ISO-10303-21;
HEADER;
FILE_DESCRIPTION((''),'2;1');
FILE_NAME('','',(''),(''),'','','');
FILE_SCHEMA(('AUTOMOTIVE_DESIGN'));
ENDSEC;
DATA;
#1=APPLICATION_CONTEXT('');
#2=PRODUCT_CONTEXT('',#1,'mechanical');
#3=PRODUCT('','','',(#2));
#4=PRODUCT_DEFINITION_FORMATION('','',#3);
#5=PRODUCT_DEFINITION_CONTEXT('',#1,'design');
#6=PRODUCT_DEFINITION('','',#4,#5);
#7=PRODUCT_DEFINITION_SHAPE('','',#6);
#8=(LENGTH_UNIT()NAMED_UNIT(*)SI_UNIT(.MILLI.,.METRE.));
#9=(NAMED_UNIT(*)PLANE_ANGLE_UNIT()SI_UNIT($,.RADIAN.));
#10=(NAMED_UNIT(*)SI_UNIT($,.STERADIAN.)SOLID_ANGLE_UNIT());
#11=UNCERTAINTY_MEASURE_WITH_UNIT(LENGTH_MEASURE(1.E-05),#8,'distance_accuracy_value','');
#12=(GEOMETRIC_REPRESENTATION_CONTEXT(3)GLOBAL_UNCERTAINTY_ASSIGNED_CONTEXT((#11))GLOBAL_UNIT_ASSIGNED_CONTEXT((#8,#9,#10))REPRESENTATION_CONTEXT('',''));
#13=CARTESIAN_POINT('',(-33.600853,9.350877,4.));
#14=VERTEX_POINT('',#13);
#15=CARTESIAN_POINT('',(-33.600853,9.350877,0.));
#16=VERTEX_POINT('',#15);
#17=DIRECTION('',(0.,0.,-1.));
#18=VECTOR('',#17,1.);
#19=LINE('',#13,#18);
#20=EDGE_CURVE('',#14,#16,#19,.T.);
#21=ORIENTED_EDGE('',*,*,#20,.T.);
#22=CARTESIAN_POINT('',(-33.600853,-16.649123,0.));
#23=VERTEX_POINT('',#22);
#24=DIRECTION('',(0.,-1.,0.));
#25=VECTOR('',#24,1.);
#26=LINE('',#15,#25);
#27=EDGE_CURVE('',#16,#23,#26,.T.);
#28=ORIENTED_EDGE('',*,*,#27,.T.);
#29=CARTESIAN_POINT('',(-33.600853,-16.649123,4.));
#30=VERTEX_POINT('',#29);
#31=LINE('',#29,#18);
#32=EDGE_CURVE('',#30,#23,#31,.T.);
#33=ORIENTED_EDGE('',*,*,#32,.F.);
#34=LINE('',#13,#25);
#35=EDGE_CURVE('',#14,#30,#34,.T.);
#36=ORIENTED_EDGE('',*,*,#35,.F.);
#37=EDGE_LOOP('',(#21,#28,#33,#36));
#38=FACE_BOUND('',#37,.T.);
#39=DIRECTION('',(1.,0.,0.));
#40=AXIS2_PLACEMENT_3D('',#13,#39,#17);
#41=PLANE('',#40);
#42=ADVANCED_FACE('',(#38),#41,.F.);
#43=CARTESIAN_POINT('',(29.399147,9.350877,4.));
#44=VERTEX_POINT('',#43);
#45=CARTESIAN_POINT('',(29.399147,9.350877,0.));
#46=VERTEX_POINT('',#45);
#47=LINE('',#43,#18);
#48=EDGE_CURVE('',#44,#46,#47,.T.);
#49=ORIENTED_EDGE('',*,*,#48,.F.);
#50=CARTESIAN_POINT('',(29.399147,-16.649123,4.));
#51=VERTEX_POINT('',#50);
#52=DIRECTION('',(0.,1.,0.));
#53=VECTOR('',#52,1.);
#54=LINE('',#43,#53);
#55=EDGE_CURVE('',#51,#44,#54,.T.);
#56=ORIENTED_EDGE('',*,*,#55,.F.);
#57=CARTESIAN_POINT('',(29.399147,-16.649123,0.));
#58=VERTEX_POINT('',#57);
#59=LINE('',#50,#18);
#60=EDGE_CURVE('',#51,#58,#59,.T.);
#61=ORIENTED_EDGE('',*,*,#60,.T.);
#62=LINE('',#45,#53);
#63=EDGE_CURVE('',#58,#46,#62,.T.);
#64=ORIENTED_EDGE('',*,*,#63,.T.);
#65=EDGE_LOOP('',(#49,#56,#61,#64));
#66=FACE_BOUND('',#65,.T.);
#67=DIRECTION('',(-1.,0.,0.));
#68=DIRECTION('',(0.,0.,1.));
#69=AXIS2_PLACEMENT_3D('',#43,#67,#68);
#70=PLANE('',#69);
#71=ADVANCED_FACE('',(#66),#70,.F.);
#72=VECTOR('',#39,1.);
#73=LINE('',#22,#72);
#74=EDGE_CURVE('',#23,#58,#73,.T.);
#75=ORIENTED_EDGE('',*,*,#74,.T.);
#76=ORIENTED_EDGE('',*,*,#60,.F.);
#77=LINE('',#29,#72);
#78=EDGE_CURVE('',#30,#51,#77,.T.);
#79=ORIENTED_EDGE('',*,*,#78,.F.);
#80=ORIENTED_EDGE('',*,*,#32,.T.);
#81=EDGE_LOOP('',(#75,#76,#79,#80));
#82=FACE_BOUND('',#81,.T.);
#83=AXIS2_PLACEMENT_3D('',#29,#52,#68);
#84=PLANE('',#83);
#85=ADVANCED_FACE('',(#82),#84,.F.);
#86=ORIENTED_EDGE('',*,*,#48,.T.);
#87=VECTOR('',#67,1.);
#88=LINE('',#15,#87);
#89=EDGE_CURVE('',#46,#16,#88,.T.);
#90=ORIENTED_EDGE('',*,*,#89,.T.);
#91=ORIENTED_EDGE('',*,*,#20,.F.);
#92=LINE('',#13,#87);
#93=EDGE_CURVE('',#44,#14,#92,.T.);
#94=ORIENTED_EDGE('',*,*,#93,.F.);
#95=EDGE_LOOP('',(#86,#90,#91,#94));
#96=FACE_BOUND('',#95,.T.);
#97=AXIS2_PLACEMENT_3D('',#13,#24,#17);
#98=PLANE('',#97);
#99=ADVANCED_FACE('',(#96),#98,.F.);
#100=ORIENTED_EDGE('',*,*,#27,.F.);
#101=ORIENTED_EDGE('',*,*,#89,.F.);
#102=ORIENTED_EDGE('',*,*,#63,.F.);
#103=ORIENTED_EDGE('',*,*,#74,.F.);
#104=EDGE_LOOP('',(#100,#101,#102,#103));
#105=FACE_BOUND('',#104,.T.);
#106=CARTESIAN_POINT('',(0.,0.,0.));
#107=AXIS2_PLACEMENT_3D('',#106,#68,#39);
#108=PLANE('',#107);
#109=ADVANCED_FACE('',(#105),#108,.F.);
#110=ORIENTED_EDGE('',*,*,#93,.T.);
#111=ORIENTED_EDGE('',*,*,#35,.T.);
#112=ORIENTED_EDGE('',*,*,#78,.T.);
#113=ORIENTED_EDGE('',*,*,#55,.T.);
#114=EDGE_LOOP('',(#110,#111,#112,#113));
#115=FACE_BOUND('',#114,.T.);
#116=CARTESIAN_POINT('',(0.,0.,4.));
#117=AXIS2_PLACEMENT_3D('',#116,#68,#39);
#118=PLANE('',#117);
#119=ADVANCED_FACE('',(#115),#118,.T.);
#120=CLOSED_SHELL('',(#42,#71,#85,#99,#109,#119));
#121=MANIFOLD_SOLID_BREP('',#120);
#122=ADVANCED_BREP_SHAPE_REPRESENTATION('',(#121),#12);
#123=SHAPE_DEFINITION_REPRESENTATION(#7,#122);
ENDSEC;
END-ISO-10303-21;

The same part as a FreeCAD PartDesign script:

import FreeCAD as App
import Part
import Sketcher

V = App.Vector


def add_polygon(sketch, points):
    """Adds a closed chain of lines whose ends are joined by coincident constraints."""
    first, n = sketch.GeometryCount, len(points)
    for a, b in zip(points, points[1:] + points[:1]):
        sketch.addGeometry(Part.LineSegment(App.Vector(*a, 0), App.Vector(*b, 0)), False)
    for i in range(n):
        sketch.addConstraint(Sketcher.Constraint("Coincident", first + i, 2, first + (i + 1) % n, 1))

doc = App.newDocument("Part")
body = doc.addObject("PartDesign::Body", "Body")

# Sketch on XY plane
sketch1 = body.newObject("Sketcher::SketchObject", "Sketch")
sketch1.AttachmentSupport = (doc.getObject("XY_Plane"), [""])
sketch1.MapMode = "FlatFace"
add_polygon(sketch1, [(-33.600853, 9.350877), (-33.600853, -16.649123), (29.399147, -16.649123), (29.399147, 9.350877)])  # lines 0-3
sketch1.addConstraint(Sketcher.Constraint("Vertical", 0))
sketch1.addConstraint(Sketcher.Constraint("Horizontal", 1))
sketch1.addConstraint(Sketcher.Constraint("Vertical", 2))
sketch1.addConstraint(Sketcher.Constraint("Horizontal", 3))
sketch1.addConstraint(Sketcher.Constraint("DistanceX", 1, 1, 1, 2, 63.0))
sketch1.addConstraint(Sketcher.Constraint("DistanceY", 0, 2, 0, 1, 26.0))
sketch1.addConstraint(Sketcher.Constraint("DistanceX", 0, 2, -1, 1, 33.600853))
sketch1.addConstraint(Sketcher.Constraint("DistanceY", 0, 2, -1, 1, 16.649123))
pad1 = body.newObject("PartDesign::Pad", "Pad")
pad1.Profile = sketch1
pad1.Length = 4

doc.recompute()
